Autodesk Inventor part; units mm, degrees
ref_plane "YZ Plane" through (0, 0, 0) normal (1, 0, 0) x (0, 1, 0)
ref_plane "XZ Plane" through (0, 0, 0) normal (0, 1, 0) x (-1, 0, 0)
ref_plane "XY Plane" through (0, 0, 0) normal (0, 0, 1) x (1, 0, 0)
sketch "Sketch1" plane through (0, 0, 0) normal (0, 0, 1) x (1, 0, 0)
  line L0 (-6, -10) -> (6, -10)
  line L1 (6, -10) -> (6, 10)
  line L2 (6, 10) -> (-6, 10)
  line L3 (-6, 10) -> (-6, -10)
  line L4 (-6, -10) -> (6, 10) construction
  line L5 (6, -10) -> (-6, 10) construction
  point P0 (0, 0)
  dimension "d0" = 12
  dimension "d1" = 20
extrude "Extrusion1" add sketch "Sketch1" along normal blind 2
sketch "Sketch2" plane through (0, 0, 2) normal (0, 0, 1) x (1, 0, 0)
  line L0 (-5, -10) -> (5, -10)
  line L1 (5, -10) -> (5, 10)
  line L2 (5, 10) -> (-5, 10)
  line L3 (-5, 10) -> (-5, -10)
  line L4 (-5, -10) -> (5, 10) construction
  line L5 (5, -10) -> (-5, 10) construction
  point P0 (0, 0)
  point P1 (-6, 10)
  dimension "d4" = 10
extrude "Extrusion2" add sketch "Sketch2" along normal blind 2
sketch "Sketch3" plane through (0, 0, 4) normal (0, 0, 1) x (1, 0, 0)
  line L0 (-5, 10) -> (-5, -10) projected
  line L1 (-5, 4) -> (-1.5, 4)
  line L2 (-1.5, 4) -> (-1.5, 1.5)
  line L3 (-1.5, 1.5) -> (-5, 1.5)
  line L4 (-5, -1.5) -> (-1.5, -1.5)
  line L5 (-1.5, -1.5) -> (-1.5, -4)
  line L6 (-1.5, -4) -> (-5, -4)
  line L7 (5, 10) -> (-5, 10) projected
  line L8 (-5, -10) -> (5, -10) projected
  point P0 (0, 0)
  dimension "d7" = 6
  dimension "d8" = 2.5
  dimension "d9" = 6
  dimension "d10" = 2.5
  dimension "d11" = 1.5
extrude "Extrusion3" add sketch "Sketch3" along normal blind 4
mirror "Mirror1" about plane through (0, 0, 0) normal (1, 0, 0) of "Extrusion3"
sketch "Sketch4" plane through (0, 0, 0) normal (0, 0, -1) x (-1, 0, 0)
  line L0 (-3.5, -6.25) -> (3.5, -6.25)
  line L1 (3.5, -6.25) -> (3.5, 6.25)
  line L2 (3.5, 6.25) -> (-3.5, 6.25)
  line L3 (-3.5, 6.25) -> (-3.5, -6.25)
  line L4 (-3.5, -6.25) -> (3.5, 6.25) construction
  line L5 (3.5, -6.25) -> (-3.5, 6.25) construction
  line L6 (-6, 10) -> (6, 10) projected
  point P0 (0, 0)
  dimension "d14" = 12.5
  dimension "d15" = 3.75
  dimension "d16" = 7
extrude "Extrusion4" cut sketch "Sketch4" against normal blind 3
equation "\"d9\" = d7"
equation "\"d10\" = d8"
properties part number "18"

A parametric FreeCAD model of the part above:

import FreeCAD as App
import Part
import Sketcher
Q = App.Units.Quantity

doc = App.newDocument("Part")
params = doc.addObject("Spreadsheet::Sheet", "Params")
for row, (alias, value) in enumerate([
    ("sketch1_width", "12 mm"),
    ("sketch1_height", "20 mm"),
    ("pad1_length", "2 mm"),
    ("sketch2_width", "10 mm"),
    ("pad2_length", "2 mm"),
    ("sketch3_height", "2.5 mm"),
    ("sketch3_width", "3.5 mm"),
    ("pad3_length", "4 mm"),
    ("sketch4_width", "7 mm"),
    ("sketch4_height", "12.5 mm"),
    ("pocket1_length", "3 mm"),
], start=1):
    params.set(f"A{row}", alias)
    params.set(f"B{row}", "=" + value)
    params.setAlias(f"B{row}", alias)

body = doc.addObject("PartDesign::Body", "Body")

# Sketch on XY plane
sketch1 = body.newObject("Sketcher::SketchObject", "Sketch")
sketch1.AttachmentSupport = (doc.getObject("XY_Plane"), [""])
sketch1.MapMode = "FlatFace"
sketch1.addGeometry(Part.LineSegment(App.Vector(-6, 10, 0), App.Vector(-6, -10, 0)), False)
sketch1.addGeometry(Part.LineSegment(App.Vector(-6, -10, 0), App.Vector(6, -10, 0)), False)
sketch1.addGeometry(Part.LineSegment(App.Vector(6, -10, 0), App.Vector(6, 10, 0)), False)
sketch1.addGeometry(Part.LineSegment(App.Vector(6, 10, 0), App.Vector(-6, 10, 0)), False)
sketch1.addConstraint(Sketcher.Constraint("Coincident", 0, 2, 1, 1))
sketch1.addConstraint(Sketcher.Constraint("Coincident", 1, 2, 2, 1))
sketch1.addConstraint(Sketcher.Constraint("Coincident", 2, 2, 3, 1))
sketch1.addConstraint(Sketcher.Constraint("Coincident", 3, 2, 0, 1))
sketch1.addConstraint(Sketcher.Constraint("Vertical", 0))
sketch1.addConstraint(Sketcher.Constraint("Horizontal", 1))
sketch1.addConstraint(Sketcher.Constraint("Vertical", 2))
sketch1.addConstraint(Sketcher.Constraint("Horizontal", 3))
sketch1.addConstraint(Sketcher.Constraint("Symmetric", 0, 2, 2, 2, -1, 1))
sketch1.addConstraint(Sketcher.Constraint("DistanceX", 1, 1, 1, 2, Q("12 mm")))
sketch1.addConstraint(Sketcher.Constraint("DistanceY", 0, 2, 0, 1, Q("20 mm")))
sketch1.setExpression("Constraints[9]", "Params.sketch1_width")
sketch1.setExpression("Constraints[10]", "Params.sketch1_height")
pad1 = body.newObject("PartDesign::Pad", "Pad")
pad1.Profile = sketch1
pad1.setExpression("Length", "Params.pad1_length")

# Sketch on XY plane
sketch2 = body.newObject("Sketcher::SketchObject", "Sketch001")
sketch2.AttachmentSupport = (doc.getObject("XY_Plane"), [""])
sketch2.MapMode = "FlatFace"
sketch2.AttachmentOffset = App.Placement(App.Vector(0, 0, 2), App.Rotation())
sketch2.addGeometry(Part.LineSegment(App.Vector(-5, 10, 0), App.Vector(-5, -10, 0)), False)
sketch2.addGeometry(Part.LineSegment(App.Vector(-5, -10, 0), App.Vector(5, -10, 0)), False)
sketch2.addGeometry(Part.LineSegment(App.Vector(5, -10, 0), App.Vector(5, 10, 0)), False)
sketch2.addGeometry(Part.LineSegment(App.Vector(5, 10, 0), App.Vector(-5, 10, 0)), False)
sketch2.addConstraint(Sketcher.Constraint("Coincident", 0, 2, 1, 1))
sketch2.addConstraint(Sketcher.Constraint("Coincident", 1, 2, 2, 1))
sketch2.addConstraint(Sketcher.Constraint("Coincident", 2, 2, 3, 1))
sketch2.addConstraint(Sketcher.Constraint("Coincident", 3, 2, 0, 1))
sketch2.addConstraint(Sketcher.Constraint("Vertical", 0))
sketch2.addConstraint(Sketcher.Constraint("Horizontal", 1))
sketch2.addConstraint(Sketcher.Constraint("Vertical", 2))
sketch2.addConstraint(Sketcher.Constraint("Horizontal", 3))
sketch2.addConstraint(Sketcher.Constraint("Symmetric", 0, 2, 2, 2, -1, 1))
sketch2.addConstraint(Sketcher.Constraint("DistanceX", 1, 1, 1, 2, Q("10 mm")))
sketch2.addConstraint(Sketcher.Constraint("DistanceY", 0, 2, -1, 1, Q("10 mm")))
sketch2.setExpression("Constraints[9]", "Params.sketch2_width")
pad2 = body.newObject("PartDesign::Pad", "Pad001")
pad2.Profile = sketch2
pad2.setExpression("Length", "Params.pad2_length")

# Sketch on XY plane
sketch3 = body.newObject("Sketcher::SketchObject", "Sketch002")
sketch3.AttachmentSupport = (doc.getObject("XY_Plane"), [""])
sketch3.MapMode = "FlatFace"
sketch3.AttachmentOffset = App.Placement(App.Vector(0, 0, 4), App.Rotation())
sketch3.addGeometry(Part.LineSegment(App.Vector(-1.5, 4, 0), App.Vector(-5, 4, 0)), False)
sketch3.addGeometry(Part.LineSegment(App.Vector(-5, 4, 0), App.Vector(-5, 1.5, 0)), False)
sketch3.addGeometry(Part.LineSegment(App.Vector(-5, 1.5, 0), App.Vector(-1.5, 1.5, 0)), False)
sketch3.addGeometry(Part.LineSegment(App.Vector(-1.5, 1.5, 0), App.Vector(-1.5, 4, 0)), False)
sketch3.addGeometry(Part.LineSegment(App.Vector(-1.5, -1.5, 0), App.Vector(-5, -1.5, 0)), False)
sketch3.addGeometry(Part.LineSegment(App.Vector(-5, -1.5, 0), App.Vector(-5, -4, 0)), False)
sketch3.addGeometry(Part.LineSegment(App.Vector(-5, -4, 0), App.Vector(-1.5, -4, 0)), False)
sketch3.addGeometry(Part.LineSegment(App.Vector(-1.5, -4, 0), App.Vector(-1.5, -1.5, 0)), False)
sketch3.addConstraint(Sketcher.Constraint("Coincident", 0, 2, 1, 1))
sketch3.addConstraint(Sketcher.Constraint("Coincident", 1, 2, 2, 1))
sketch3.addConstraint(Sketcher.Constraint("Coincident", 2, 2, 3, 1))
sketch3.addConstraint(Sketcher.Constraint("Coincident", 3, 2, 0, 1))
sketch3.addConstraint(Sketcher.Constraint("Coincident", 4, 2, 5, 1))
sketch3.addConstraint(Sketcher.Constraint("Coincident", 5, 2, 6, 1))
sketch3.addConstraint(Sketcher.Constraint("Coincident", 6, 2, 7, 1))
sketch3.addConstraint(Sketcher.Constraint("Coincident", 7, 2, 4, 1))
sketch3.addConstraint(Sketcher.Constraint("Horizontal", 0))
sketch3.addConstraint(Sketcher.Constraint("Vertical", 1))
sketch3.addConstraint(Sketcher.Constraint("Horizontal", 2))
sketch3.addConstraint(Sketcher.Constraint("Vertical", 3))
sketch3.addConstraint(Sketcher.Constraint("Horizontal", 4))
sketch3.addConstraint(Sketcher.Constraint("Vertical", 5))
sketch3.addConstraint(Sketcher.Constraint("Horizontal", 6))
sketch3.addConstraint(Sketcher.Constraint("Vertical", 7))
sketch3.addConstraint(Sketcher.Constraint("Symmetric", 1, 2, 4, 2, -1))
sketch3.addConstraint(Sketcher.Constraint("Symmetric", 3, 2, 6, 2, -1))
sketch3.addConstraint(Sketcher.Constraint("DistanceY", 1, 2, 1, 1, Q("2.5 mm")))
sketch3.addConstraint(Sketcher.Constraint("DistanceY", -1, 1, 1, 2, Q("1.5 mm")))
sketch3.addConstraint(Sketcher.Constraint("DistanceX", 2, 2, -1, 1, Q("1.5 mm")))
sketch3.addConstraint(Sketcher.Constraint("DistanceX", 0, 2, 0, 1, Q("3.5 mm")))
sketch3.setExpression("Constraints[18]", "Params.sketch3_height")
sketch3.setExpression("Constraints[21]", "Params.sketch3_width")
pad3 = body.newObject("PartDesign::Pad", "Pad002")
pad3.Profile = sketch3
pad3.setExpression("Length", "Params.pad3_length")
doc.recompute()

mirrored = body.newObject("PartDesign::Mirrored", "Mirrored")
mirrored.Originals = [pad3]
mirrored.MirrorPlane = (doc.getObject("YZ_Plane"), [""])
body.Tip = mirrored

# Sketch on XY plane
sketch4 = body.newObject("Sketcher::SketchObject", "Sketch003")
sketch4.AttachmentSupport = (doc.getObject("XY_Plane"), [""])
sketch4.MapMode = "FlatFace"
sketch4.addGeometry(Part.LineSegment(App.Vector(4, 6, 0), App.Vector(4, -6, 0)), False)
sketch4.addGeometry(Part.LineSegment(App.Vector(4, -6, 0), App.Vector(-4, -6, 0)), False)
sketch4.addGeometry(Part.LineSegment(App.Vector(-4, -6, 0), App.Vector(-4, 6, 0)), False)
sketch4.addGeometry(Part.LineSegment(App.Vector(-4, 6, 0), App.Vector(4, 6, 0)), False)
sketch4.addConstraint(Sketcher.Constraint("Coincident", 0, 2, 1, 1))
sketch4.addConstraint(Sketcher.Constraint("Coincident", 1, 2, 2, 1))
sketch4.addConstraint(Sketcher.Constraint("Coincident", 2, 2, 3, 1))
sketch4.addConstraint(Sketcher.Constraint("Coincident", 3, 2, 0, 1))
sketch4.addConstraint(Sketcher.Constraint("Vertical", 0))
sketch4.addConstraint(Sketcher.Constraint("Horizontal", 1))
sketch4.addConstraint(Sketcher.Constraint("Vertical", 2))
sketch4.addConstraint(Sketcher.Constraint("Horizontal", 3))
sketch4.addConstraint(Sketcher.Constraint("Symmetric", 0, 2, 2, 2, -1, 1))
sketch4.addConstraint(Sketcher.Constraint("DistanceX", 1, 2, 1, 1, Q("7 mm")))
sketch4.addConstraint(Sketcher.Constraint("DistanceY", 0, 2, 0, 1, Q("12.5 mm")))
sketch4.setExpression("Constraints[9]", "Params.sketch4_width")
sketch4.setExpression("Constraints[10]", "Params.sketch4_height")
pocket1 = body.newObject("PartDesign::Pocket", "Pocket")
pocket1.Profile = sketch4
pocket1.setExpression("Length", "Params.pocket1_length")
pocket1.Reversed = True

doc.recompute()
